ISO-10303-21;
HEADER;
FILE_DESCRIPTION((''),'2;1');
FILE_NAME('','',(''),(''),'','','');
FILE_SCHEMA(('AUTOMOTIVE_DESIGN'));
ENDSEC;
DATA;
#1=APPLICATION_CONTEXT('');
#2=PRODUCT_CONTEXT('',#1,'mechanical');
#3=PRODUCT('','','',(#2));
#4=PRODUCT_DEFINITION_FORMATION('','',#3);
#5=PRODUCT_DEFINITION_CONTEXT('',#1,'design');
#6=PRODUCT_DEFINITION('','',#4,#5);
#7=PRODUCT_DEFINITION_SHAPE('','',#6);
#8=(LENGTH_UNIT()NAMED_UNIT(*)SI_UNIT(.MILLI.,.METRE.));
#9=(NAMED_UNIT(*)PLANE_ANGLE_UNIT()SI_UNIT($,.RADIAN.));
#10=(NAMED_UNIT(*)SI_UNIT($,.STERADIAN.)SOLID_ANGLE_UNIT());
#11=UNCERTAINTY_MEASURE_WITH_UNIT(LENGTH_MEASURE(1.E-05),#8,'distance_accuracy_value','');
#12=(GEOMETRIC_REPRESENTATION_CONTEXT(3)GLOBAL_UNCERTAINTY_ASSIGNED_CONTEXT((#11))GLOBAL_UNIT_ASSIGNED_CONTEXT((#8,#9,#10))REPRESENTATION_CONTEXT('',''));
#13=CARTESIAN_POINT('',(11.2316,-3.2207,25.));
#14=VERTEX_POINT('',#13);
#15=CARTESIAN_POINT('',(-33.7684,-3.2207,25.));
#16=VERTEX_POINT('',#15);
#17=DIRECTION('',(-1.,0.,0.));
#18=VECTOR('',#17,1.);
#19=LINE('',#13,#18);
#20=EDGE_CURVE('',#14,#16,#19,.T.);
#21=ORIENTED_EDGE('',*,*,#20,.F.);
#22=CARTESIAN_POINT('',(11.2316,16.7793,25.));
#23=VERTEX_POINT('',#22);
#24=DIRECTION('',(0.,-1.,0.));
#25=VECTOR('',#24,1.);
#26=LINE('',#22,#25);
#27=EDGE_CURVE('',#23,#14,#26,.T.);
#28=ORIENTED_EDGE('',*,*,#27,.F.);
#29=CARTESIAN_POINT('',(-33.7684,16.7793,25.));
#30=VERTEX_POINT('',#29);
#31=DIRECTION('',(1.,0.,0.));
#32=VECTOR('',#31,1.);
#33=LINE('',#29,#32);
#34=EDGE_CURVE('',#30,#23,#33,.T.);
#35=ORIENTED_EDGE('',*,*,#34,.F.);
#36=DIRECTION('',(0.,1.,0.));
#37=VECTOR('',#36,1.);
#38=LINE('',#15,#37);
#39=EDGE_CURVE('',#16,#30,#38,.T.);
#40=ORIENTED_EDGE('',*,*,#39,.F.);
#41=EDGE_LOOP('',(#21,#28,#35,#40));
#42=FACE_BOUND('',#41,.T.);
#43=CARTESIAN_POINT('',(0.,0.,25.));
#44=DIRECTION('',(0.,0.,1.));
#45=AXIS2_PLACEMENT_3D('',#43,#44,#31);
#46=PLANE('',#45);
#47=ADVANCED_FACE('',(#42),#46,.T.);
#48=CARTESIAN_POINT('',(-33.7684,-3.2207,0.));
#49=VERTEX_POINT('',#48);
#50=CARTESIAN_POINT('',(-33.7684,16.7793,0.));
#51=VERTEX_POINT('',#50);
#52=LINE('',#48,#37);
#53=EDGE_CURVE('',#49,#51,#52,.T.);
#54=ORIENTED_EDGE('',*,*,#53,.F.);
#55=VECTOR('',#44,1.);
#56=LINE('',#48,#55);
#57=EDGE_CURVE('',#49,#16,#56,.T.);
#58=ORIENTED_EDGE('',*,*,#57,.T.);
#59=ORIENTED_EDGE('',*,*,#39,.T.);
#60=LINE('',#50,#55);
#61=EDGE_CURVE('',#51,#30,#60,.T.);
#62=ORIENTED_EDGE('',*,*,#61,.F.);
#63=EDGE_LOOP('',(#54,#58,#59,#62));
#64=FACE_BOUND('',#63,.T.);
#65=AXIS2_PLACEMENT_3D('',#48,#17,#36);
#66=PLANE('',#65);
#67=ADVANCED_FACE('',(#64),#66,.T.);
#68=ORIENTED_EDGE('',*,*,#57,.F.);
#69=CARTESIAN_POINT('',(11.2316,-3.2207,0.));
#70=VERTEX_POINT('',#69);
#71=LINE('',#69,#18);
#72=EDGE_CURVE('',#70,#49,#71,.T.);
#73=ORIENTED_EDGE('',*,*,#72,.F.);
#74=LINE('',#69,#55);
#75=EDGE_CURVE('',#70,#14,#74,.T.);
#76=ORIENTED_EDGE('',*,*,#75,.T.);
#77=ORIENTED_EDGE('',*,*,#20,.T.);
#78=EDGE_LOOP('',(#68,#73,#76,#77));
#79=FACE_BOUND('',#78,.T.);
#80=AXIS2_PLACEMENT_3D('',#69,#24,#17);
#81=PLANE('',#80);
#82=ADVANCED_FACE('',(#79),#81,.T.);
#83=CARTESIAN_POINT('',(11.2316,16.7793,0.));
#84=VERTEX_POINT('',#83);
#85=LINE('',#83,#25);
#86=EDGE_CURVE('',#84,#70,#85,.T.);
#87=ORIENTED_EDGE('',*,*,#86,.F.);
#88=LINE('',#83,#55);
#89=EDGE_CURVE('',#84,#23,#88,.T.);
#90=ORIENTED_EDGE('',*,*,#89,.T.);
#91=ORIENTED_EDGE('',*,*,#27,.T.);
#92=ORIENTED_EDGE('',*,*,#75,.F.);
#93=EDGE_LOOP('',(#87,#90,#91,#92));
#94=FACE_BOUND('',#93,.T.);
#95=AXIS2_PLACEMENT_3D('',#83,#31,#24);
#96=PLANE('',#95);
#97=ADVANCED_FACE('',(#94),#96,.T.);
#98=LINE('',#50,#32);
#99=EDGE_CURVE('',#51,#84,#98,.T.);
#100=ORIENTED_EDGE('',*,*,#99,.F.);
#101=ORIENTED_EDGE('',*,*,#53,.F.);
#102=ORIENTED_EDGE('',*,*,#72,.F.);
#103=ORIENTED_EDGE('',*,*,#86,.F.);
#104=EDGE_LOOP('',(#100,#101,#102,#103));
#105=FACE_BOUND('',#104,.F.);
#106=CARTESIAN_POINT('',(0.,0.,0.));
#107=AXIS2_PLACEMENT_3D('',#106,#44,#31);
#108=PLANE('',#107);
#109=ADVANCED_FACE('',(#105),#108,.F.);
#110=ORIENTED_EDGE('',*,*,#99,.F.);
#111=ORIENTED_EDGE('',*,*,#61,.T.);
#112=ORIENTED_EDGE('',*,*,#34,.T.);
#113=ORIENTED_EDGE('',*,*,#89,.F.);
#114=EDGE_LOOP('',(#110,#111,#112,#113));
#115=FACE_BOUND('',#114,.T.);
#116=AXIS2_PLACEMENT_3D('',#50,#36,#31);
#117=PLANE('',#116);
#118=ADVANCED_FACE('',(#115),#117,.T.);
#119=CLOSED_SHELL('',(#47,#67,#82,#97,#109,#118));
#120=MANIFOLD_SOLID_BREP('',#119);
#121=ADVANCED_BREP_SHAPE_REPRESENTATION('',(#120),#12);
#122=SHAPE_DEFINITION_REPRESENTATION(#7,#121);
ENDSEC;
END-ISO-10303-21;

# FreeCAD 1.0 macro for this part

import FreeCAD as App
import Part
import Sketcher
from FreeCAD import Vector
Q = App.Units.Quantity

doc = App.newDocument("Part")
body = doc.addObject("PartDesign::Body", "Body")

sketch1 = body.newObject("Sketcher::SketchObject", "Sketch")
sketch1.AttachmentSupport = (doc.getObject("XY_Plane"), [""])
sketch1.MapMode = "FlatFace"
sketch1.addGeometry([
    Part.LineSegment(Vector(11, 17, 0), Vector(-34, 17, 0)),
    Part.LineSegment(Vector(-34, 17, 0), Vector(-34, -3, 0)),
    Part.LineSegment(Vector(-34, -3, 0), Vector(11, -3, 0)),
    Part.LineSegment(Vector(11, -3, 0), Vector(11, 17, 0)),
], False)
sketch1.addConstraint([
    Sketcher.Constraint("Coincident", 0, 2, 1, 1),
    Sketcher.Constraint("Coincident", 1, 2, 2, 1),
    Sketcher.Constraint("Coincident", 2, 2, 3, 1),
    Sketcher.Constraint("Coincident", 3, 2, 0, 1),
    Sketcher.Constraint("Horizontal", 0),
    Sketcher.Constraint("Vertical", 1),
    Sketcher.Constraint("Horizontal", 2),
    Sketcher.Constraint("Vertical", 3),
    Sketcher.Constraint("DistanceX", 0, 2, 0, 1, Q("45 mm")),
    Sketcher.Constraint("DistanceY", 1, 2, 1, 1, Q("20 mm")),
    Sketcher.Constraint("DistanceX", 0, 2, -1, 1, Q("33.7684 mm")),
    Sketcher.Constraint("DistanceY", -1, 1, 0, 2, Q("16.7793 mm")),
])
pad1 = body.newObject("PartDesign::Pad", "Pad")
pad1.Profile = sketch1
pad1.Length = 25

doc.recompute()
